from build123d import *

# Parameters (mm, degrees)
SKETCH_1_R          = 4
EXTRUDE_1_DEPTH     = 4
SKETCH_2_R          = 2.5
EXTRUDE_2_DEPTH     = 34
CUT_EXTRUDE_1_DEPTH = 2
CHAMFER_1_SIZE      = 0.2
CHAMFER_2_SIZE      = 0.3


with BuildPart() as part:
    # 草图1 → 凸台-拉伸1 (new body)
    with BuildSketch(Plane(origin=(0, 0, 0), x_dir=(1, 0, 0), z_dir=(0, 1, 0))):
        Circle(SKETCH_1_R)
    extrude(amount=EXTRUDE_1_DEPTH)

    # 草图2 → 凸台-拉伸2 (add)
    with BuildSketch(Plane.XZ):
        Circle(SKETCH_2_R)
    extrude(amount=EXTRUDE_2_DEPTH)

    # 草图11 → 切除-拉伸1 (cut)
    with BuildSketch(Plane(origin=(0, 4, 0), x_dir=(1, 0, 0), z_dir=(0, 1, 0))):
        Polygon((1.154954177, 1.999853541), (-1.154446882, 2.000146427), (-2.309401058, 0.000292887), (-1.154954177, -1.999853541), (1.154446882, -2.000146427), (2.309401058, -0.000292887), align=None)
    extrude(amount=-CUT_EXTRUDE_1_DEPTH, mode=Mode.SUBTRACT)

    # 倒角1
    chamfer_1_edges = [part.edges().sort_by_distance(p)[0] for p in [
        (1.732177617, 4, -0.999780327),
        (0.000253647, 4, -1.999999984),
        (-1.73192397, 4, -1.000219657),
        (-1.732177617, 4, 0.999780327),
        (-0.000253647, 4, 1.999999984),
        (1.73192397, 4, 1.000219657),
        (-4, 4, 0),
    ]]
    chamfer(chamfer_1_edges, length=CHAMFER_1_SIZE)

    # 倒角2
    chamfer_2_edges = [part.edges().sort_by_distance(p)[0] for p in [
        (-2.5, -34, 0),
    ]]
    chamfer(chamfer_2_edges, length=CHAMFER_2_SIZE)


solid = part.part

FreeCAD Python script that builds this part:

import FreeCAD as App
import Part
import Sketcher


def edges_at(feature, points):
    """Names of the edges that pass closest to the given points."""
    edges = feature.Shape.Edges
    near = lambda p: min(range(len(edges)), key=lambda i: edges[i].distToShape(Part.Vertex(*p))[0])
    return sorted({f"Edge{near(p) + 1}" for p in points})

doc = App.newDocument("Part")
body = doc.addObject("PartDesign::Body", "Body")

# Sketch on XZ plane
sketch1 = doc.addObject("Sketcher::SketchObject", "Sketch")
body.addObject(sketch1)
sketch1.AttachmentSupport = (doc.XZ_Plane, [""])
sketch1.MapMode = "FlatFace"
sketch1.addGeometry(Part.Circle(App.Vector(0, 0, 0), App.Vector(0, 0, 1), 4), False)
sketch1.addConstraint(Sketcher.Constraint("Coincident", 0, 3, -1, 1))
sketch1.addConstraint(Sketcher.Constraint("Diameter", 0, 8.0))
pad1 = doc.addObject("PartDesign::Pad", "Pad")
body.addObject(pad1)
pad1.Profile = sketch1
pad1.Length = 4
pad1.Reversed = True

# Sketch on XZ plane
sketch2 = doc.addObject("Sketcher::SketchObject", "Sketch001")
body.addObject(sketch2)
sketch2.AttachmentSupport = (doc.XZ_Plane, [""])
sketch2.MapMode = "FlatFace"
sketch2.addGeometry(Part.Circle(App.Vector(0, 0, 0), App.Vector(0, 0, 1), 2.5), False)
sketch2.addConstraint(Sketcher.Constraint("Coincident", 0, 3, -1, 1))
sketch2.addConstraint(Sketcher.Constraint("Diameter", 0, 5.0))
pad2 = doc.addObject("PartDesign::Pad", "Pad001")
body.addObject(pad2)
pad2.Profile = sketch2
pad2.Length = 34

# Sketch on XZ plane
sketch3 = doc.addObject("Sketcher::SketchObject", "Sketch002")
body.addObject(sketch3)
sketch3.AttachmentSupport = (doc.XZ_Plane, [""])
sketch3.MapMode = "FlatFace"
sketch3.AttachmentOffset = App.Placement(App.Vector(0, 0, -4), App.Rotation())
sketch3.addGeometry(Part.LineSegment(App.Vector(1.2, -2, 0), App.Vector(-1.2, -2, 0)), False)
sketch3.addGeometry(Part.LineSegment(App.Vector(-1.2, -2, 0), App.Vector(-2.3, 0, 0)), False)
sketch3.addGeometry(Part.LineSegment(App.Vector(-2.3, 0, 0), App.Vector(-1.2, 2, 0)), False)
sketch3.addGeometry(Part.LineSegment(App.Vector(-1.2, 2, 0), App.Vector(1.2, 2, 0)), False)
sketch3.addGeometry(Part.LineSegment(App.Vector(1.2, 2, 0), App.Vector(2.3, 0, 0)), False)
sketch3.addGeometry(Part.LineSegment(App.Vector(2.3, 0, 0), App.Vector(1.2, -2, 0)), False)
sketch3.addConstraint(Sketcher.Constraint("Coincident", 0, 2, 1, 1))
sketch3.addConstraint(Sketcher.Constraint("Coincident", 1, 2, 2, 1))
sketch3.addConstraint(Sketcher.Constraint("Coincident", 2, 2, 3, 1))
sketch3.addConstraint(Sketcher.Constraint("Coincident", 3, 2, 4, 1))
sketch3.addConstraint(Sketcher.Constraint("Coincident", 4, 2, 5, 1))
sketch3.addConstraint(Sketcher.Constraint("Coincident", 5, 2, 0, 1))
sketch3.addConstraint(Sketcher.Constraint("Symmetric", 0, 2, 3, 2, -1, 1))
sketch3.addConstraint(Sketcher.Constraint("Symmetric", 1, 2, 4, 2, -1, 1))
sketch3.addConstraint(Sketcher.Constraint("Symmetric", 2, 2, 5, 2, -1, 1))
sketch3.addConstraint(Sketcher.Constraint("Equal", 0, 1))
sketch3.addConstraint(Sketcher.Constraint("Equal", 1, 2))
sketch3.addConstraint(Sketcher.Constraint("DistanceY", 0, 2, 2, 2, 4.0))
sketch3.addConstraint(Sketcher.Constraint("Distance", 0, 2.309401))
sketch3.addConstraint(Sketcher.Constraint("DistanceY", 1, 2, 3, 2, 2.000439))
sketch3.addConstraint(Sketcher.Constraint("DistanceX", 2, 2, 5, 2, 2.309908))
pocket1 = doc.addObject("PartDesign::Pocket", "Pocket")
body.addObject(pocket1)
pocket1.Profile = sketch3
pocket1.Length = 2
pocket1.Reversed = True
doc.recompute()

chamfer = doc.addObject("PartDesign::Chamfer", "Chamfer")
body.addObject(chamfer)
chamfer.Base = (pocket1, edges_at(pocket1, [
    (1.732, 4, -1),
    (0, 4, -2),
    (-1.732, 4, -1),
    (-1.732, 4, 1),
    (0, 4, 2),
    (1.732, 4, 1),
    (-4, 4, 0),
]))
chamfer.Size = 0.2
doc.recompute()

chamfer2 = doc.addObject("PartDesign::Chamfer", "Chamfer001")
body.addObject(chamfer2)
chamfer2.Base = (chamfer, edges_at(chamfer, [(-2.5, -34, 0)]))
chamfer2.Size = 0.3

doc.recompute()
